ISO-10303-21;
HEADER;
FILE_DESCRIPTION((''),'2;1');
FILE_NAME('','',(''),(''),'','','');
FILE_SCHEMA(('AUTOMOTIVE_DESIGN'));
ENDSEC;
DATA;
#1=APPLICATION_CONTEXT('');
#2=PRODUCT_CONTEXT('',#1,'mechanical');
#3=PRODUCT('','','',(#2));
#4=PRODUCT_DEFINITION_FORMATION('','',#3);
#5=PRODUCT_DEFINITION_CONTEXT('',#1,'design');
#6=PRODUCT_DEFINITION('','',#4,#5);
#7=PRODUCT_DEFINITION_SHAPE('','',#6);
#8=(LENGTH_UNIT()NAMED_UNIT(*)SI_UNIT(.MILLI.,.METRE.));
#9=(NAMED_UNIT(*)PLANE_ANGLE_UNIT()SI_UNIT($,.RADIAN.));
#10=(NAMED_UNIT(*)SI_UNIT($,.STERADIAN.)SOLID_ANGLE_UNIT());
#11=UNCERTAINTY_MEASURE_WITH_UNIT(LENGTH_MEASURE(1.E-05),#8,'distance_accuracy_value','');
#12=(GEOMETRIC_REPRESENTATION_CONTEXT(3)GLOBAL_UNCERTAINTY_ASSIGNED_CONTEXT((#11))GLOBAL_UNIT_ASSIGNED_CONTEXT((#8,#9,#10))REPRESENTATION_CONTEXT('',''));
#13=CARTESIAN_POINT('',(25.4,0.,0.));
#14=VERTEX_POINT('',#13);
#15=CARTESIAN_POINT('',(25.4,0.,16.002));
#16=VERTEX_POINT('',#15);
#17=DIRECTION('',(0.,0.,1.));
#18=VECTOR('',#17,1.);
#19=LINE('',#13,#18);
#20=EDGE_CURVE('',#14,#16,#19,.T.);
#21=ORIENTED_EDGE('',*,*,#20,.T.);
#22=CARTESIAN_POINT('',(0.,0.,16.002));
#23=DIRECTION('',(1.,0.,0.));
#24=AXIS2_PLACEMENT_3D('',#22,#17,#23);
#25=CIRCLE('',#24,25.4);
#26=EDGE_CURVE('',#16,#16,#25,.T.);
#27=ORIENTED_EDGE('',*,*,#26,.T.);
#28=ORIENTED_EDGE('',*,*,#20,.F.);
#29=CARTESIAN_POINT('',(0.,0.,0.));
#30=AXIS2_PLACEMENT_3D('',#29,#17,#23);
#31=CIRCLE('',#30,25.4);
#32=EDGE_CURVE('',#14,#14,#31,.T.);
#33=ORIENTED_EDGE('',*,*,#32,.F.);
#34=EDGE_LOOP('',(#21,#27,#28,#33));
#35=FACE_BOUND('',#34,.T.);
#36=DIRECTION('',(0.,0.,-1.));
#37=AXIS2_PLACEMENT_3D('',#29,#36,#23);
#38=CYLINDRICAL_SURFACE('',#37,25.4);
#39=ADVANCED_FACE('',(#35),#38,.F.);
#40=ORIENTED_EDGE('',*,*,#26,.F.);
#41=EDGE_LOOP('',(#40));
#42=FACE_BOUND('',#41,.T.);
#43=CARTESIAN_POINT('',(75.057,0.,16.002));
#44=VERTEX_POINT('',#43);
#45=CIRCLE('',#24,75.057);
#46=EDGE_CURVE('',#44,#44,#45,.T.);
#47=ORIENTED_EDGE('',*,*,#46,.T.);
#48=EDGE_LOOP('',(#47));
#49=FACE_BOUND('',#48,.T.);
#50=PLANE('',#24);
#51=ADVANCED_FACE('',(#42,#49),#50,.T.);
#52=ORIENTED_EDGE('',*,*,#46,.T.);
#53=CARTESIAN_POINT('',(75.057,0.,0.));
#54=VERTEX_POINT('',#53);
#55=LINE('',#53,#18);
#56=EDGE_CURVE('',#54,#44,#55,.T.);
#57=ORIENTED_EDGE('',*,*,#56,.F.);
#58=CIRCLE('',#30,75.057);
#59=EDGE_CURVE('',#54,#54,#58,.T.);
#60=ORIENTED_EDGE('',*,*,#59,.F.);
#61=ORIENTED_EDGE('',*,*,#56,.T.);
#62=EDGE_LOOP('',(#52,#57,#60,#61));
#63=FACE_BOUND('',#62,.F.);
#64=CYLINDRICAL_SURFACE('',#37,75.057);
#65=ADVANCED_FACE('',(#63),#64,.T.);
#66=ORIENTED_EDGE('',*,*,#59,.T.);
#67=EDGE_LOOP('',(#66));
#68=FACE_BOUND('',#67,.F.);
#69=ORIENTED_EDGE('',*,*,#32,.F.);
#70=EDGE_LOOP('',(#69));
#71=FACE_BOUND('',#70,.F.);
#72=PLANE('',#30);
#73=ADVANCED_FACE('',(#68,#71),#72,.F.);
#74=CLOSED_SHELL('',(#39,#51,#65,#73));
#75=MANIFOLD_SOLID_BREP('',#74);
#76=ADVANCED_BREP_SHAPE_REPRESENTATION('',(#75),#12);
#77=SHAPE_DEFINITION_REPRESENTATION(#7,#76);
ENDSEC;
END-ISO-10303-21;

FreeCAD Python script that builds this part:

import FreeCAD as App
import Part
import Sketcher
Q = App.Units.Quantity

doc = App.newDocument("Part")
params = doc.addObject("Spreadsheet::Sheet", "Params")
for row, (alias, value) in enumerate([
    ("sketch1_diameter", "2 in"),
    ("sketch1_diameter2", "5.91 in"),
    ("pad1_length", "0.63 in"),
], start=1):
    params.set(f"A{row}", alias)
    params.set(f"B{row}", "=" + value)
    params.setAlias(f"B{row}", alias)

body = doc.addObject("PartDesign::Body", "Body")

# Sketch on XY plane
sketch1 = body.newObject("Sketcher::SketchObject", "Sketch")
sketch1.AttachmentSupport = (doc.getObject("XY_Plane"), [""])
sketch1.MapMode = "FlatFace"
sketch1.addGeometry([
    Part.Circle(App.Vector(0, 0, 0), App.Vector(0, 0, 1), 75.057),
    Part.Circle(App.Vector(0, 0, 0), App.Vector(0, 0, 1), 25.4),
], False)
sketch1.addConstraint([
    Sketcher.Constraint("Coincident", 0, 3, -1, 1),
    Sketcher.Constraint("Coincident", 1, 3, -1, 1),
    Sketcher.Constraint("Diameter", 1, Q("2 in")),
    Sketcher.Constraint("Diameter", 0, Q("5.91 in")),
])
sketch1.setExpression("Constraints[2]", "Params.sketch1_diameter")
sketch1.setExpression("Constraints[3]", "Params.sketch1_diameter2")
pad1 = body.newObject("PartDesign::Pad", "Pad")
pad1.Profile = sketch1
pad1.setExpression("Length", "Params.pad1_length")

doc.recompute()
